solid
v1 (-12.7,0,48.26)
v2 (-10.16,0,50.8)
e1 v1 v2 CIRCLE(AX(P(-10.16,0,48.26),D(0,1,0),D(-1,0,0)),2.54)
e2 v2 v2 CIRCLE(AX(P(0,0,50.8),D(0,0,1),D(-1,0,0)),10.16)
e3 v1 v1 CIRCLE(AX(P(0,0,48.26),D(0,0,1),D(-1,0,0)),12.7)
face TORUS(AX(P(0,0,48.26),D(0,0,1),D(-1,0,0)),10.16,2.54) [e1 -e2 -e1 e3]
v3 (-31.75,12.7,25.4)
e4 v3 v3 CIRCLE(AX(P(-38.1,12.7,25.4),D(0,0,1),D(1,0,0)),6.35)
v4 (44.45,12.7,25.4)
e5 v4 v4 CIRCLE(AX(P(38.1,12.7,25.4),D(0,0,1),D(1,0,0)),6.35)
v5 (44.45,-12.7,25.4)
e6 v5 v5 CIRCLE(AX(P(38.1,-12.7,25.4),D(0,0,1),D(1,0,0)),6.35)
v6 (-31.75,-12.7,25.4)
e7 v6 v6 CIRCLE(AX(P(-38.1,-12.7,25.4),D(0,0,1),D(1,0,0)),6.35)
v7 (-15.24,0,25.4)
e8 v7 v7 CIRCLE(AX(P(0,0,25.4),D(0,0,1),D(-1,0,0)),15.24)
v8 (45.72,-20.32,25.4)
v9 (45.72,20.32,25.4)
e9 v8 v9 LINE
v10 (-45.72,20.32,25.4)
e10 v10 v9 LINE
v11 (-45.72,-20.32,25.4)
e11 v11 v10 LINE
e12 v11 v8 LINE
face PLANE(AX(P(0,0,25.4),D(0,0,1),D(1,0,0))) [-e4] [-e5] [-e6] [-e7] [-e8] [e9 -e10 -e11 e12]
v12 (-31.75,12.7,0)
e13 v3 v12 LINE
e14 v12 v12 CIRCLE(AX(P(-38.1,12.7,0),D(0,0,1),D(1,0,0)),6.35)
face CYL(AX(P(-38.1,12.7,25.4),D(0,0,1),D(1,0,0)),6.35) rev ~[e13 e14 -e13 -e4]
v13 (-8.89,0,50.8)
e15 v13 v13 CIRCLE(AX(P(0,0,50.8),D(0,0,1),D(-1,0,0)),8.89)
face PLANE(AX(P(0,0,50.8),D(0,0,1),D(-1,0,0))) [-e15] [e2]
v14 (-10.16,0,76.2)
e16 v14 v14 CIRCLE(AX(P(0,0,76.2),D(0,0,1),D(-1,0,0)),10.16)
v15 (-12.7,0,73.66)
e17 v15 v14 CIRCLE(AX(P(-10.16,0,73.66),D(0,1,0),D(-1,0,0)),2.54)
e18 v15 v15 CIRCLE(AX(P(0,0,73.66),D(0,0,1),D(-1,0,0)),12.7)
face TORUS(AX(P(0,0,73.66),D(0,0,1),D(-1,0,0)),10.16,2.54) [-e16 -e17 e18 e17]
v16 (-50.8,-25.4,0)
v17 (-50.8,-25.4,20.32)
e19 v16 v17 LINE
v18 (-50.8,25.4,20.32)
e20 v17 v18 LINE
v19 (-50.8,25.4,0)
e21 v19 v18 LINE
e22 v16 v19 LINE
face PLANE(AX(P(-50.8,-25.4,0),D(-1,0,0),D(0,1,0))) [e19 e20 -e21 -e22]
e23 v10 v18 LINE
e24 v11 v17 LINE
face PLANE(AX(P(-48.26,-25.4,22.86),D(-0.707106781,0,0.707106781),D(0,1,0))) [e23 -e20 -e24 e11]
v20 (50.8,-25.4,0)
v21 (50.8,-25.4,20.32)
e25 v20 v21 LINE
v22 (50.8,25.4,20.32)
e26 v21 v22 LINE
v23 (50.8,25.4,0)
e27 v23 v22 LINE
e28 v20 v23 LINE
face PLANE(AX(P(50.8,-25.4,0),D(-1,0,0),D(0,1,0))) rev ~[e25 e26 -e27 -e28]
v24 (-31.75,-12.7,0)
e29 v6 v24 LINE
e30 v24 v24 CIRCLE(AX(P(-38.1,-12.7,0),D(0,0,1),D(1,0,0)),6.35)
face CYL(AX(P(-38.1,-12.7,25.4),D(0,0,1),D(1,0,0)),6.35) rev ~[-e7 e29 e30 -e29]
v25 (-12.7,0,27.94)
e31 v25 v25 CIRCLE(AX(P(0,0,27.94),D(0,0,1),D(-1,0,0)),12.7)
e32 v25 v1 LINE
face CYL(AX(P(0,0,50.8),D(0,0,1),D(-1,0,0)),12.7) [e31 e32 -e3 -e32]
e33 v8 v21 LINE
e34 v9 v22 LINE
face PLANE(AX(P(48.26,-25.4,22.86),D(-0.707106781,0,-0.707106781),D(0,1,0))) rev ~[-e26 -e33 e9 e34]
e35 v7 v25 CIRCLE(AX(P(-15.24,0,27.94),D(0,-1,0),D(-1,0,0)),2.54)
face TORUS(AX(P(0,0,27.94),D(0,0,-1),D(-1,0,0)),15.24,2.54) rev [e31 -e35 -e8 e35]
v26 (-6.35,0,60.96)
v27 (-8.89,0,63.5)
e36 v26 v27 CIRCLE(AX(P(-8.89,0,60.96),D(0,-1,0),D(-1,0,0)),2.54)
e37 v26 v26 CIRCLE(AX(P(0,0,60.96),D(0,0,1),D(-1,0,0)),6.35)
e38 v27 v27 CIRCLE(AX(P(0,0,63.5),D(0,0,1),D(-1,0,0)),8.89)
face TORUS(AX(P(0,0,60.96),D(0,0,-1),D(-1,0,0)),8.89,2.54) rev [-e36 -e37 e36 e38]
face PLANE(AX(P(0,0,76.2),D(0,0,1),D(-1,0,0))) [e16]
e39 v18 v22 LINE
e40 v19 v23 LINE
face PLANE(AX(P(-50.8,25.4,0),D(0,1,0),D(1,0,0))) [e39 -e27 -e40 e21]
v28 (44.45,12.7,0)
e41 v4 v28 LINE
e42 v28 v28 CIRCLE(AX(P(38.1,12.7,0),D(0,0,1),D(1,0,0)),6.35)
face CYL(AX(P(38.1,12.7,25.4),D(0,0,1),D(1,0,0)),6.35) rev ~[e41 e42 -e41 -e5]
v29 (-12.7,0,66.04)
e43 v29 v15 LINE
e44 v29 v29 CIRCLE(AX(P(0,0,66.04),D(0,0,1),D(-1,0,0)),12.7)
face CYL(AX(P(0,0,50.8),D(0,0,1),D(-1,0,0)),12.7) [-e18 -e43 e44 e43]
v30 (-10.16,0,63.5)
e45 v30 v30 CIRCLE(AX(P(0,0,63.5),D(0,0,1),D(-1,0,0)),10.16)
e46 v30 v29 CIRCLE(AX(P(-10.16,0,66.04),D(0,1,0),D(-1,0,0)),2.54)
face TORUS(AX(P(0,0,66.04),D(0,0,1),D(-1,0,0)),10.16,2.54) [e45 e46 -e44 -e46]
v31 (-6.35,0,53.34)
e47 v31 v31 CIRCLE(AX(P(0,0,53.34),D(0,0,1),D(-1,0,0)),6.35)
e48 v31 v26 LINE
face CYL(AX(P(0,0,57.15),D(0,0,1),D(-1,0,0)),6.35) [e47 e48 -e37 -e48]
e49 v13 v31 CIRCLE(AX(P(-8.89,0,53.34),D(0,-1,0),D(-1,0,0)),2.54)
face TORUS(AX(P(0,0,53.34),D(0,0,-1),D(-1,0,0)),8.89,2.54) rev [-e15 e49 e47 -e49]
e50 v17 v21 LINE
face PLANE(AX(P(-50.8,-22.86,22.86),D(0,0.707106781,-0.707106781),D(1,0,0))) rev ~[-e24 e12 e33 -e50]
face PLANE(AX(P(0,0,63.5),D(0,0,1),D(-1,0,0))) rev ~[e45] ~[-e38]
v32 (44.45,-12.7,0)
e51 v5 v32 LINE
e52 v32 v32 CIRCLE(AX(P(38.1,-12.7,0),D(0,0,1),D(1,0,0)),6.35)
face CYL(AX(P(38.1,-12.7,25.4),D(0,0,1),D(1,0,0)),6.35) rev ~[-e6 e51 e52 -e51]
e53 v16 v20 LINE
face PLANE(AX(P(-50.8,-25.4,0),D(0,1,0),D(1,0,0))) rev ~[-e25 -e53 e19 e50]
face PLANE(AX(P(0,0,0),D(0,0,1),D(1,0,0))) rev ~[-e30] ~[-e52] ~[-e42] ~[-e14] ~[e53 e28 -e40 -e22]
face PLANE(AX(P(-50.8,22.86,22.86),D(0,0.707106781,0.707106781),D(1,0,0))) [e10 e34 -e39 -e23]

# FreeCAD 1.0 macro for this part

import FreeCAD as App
import Part
import Sketcher
Q = App.Units.Quantity


def edges_at(feature, points):
    """Names of the edges that pass closest to the given points."""
    edges = feature.Shape.Edges
    near = lambda p: min(range(len(edges)), key=lambda i: edges[i].distToShape(Part.Vertex(*p))[0])
    return sorted({f"Edge{near(p) + 1}" for p in points})

doc = App.newDocument("Part")
body = doc.addObject("PartDesign::Body", "Body")

# Sketch on XY plane
sketch1 = body.newObject("Sketcher::SketchObject", "Sketch")
sketch1.AttachmentSupport = (doc.getObject("XY_Plane"), [""])
sketch1.MapMode = "FlatFace"
sketch1.addGeometry([
    Part.LineSegment(App.Vector(-51, 25, 0), App.Vector(-51, -25, 0)),
    Part.LineSegment(App.Vector(-51, -25, 0), App.Vector(51, -25, 0)),
    Part.LineSegment(App.Vector(51, -25, 0), App.Vector(51, 25, 0)),
    Part.LineSegment(App.Vector(51, 25, 0), App.Vector(-51, 25, 0)),
], False)
sketch1.addConstraint([
    Sketcher.Constraint("Coincident", 0, 2, 1, 1),
    Sketcher.Constraint("Coincident", 1, 2, 2, 1),
    Sketcher.Constraint("Coincident", 2, 2, 3, 1),
    Sketcher.Constraint("Coincident", 3, 2, 0, 1),
    Sketcher.Constraint("Vertical", 0),
    Sketcher.Constraint("Horizontal", 1),
    Sketcher.Constraint("Vertical", 2),
    Sketcher.Constraint("Horizontal", 3),
    Sketcher.Constraint("Symmetric", 0, 2, 2, 2, -1, 1),
    Sketcher.Constraint("DistanceX", 1, 1, 1, 2, Q("4 in")),
    Sketcher.Constraint("DistanceY", 0, 2, 0, 1, Q("2 in")),
])
pad1 = body.newObject("PartDesign::Pad", "Pad")
pad1.Profile = sketch1
pad1.Length = Q("1 in")

# Sketch on XY plane
sketch2 = body.newObject("Sketcher::SketchObject", "Sketch001")
sketch2.AttachmentSupport = (doc.getObject("XY_Plane"), [""])
sketch2.MapMode = "FlatFace"
sketch2.AttachmentOffset = App.Placement(App.Vector(0, 0, 1 * 25.4), App.Rotation())
sketch2.addGeometry([
    Part.Circle(App.Vector(-38, 13, 0), App.Vector(0, 0, 1), 6),
    Part.Circle(App.Vector(38, 13, 0), App.Vector(0, 0, 1), 6),
    Part.Circle(App.Vector(38, -13, 0), App.Vector(0, 0, 1), 6),
    Part.Circle(App.Vector(-38, -13, 0), App.Vector(0, 0, 1), 6),
], False)
sketch2.addConstraint([
    Sketcher.Constraint("Equal", 0, 1),
    Sketcher.Constraint("Equal", 1, 2),
    Sketcher.Constraint("Equal", 2, 3),
    Sketcher.Constraint("Symmetric", 0, 3, 2, 3, -1, 1),
    Sketcher.Constraint("Symmetric", 1, 3, 3, 3, -1, 1),
    Sketcher.Constraint("Symmetric", 0, 3, 1, 3, -2),
    Sketcher.Constraint("Diameter", 0, Q("0.5 in")),
    Sketcher.Constraint("DistanceX", 0, 3, 1, 3, Q("3 in")),
    Sketcher.Constraint("DistanceY", 2, 3, 1, 3, Q("1 in")),
])
pocket1 = body.newObject("PartDesign::Pocket", "Pocket")
pocket1.Profile = sketch2
pocket1.Type = "ThroughAll"

# Sketch on XZ plane
sketch3 = body.newObject("Sketcher::SketchObject", "Sketch002")
sketch3.AttachmentSupport = (doc.getObject("XZ_Plane"), [""])
sketch3.MapMode = "FlatFace"
sketch3.addGeometry([
    Part.LineSegment(App.Vector(-13, 76, 0), App.Vector(-13, 25, 0)),
    Part.LineSegment(App.Vector(-13, 25, 0), App.Vector(0, 25, 0)),
    Part.LineSegment(App.Vector(0, 25, 0), App.Vector(0, 76, 0)),
    Part.LineSegment(App.Vector(0, 76, 0), App.Vector(-13, 76, 0)),
], False)
sketch3.addConstraint([
    Sketcher.Constraint("Coincident", 0, 2, 1, 1),
    Sketcher.Constraint("Coincident", 1, 2, 2, 1),
    Sketcher.Constraint("Coincident", 2, 2, 3, 1),
    Sketcher.Constraint("Coincident", 3, 2, 0, 1),
    Sketcher.Constraint("Vertical", 0),
    Sketcher.Constraint("Horizontal", 1),
    Sketcher.Constraint("Vertical", 2),
    Sketcher.Constraint("Horizontal", 3),
    Sketcher.Constraint("PointOnObject", 1, 2, -2),
    Sketcher.Constraint("DistanceY", 0, 2, 0, 1, Q("2 in")),
    Sketcher.Constraint("DistanceX", 1, 1, 1, 2, Q("0.5 in")),
    Sketcher.Constraint("DistanceY", -1, 1, 0, 2, Q("1 in")),
])
revolution = body.newObject("PartDesign::Revolution", "Revolution")
revolution.Profile = sketch3
revolution.ReferenceAxis = (sketch3, ["V_Axis"])
revolution.Angle = 360

# Sketch on XZ plane
sketch4 = body.newObject("Sketcher::SketchObject", "Sketch003")
sketch4.AttachmentSupport = (doc.getObject("XZ_Plane"), [""])
sketch4.MapMode = "FlatFace"
sketch4.addGeometry([
    Part.LineSegment(App.Vector(-19, 64, 0), App.Vector(-19, 51, 0)),
    Part.LineSegment(App.Vector(-19, 51, 0), App.Vector(-6, 51, 0)),
    Part.LineSegment(App.Vector(-6, 51, 0), App.Vector(-6, 64, 0)),
    Part.LineSegment(App.Vector(-6, 64, 0), App.Vector(-19, 64, 0)),
], False)
sketch4.addConstraint([
    Sketcher.Constraint("Coincident", 0, 2, 1, 1),
    Sketcher.Constraint("Coincident", 1, 2, 2, 1),
    Sketcher.Constraint("Coincident", 2, 2, 3, 1),
    Sketcher.Constraint("Coincident", 3, 2, 0, 1),
    Sketcher.Constraint("Vertical", 0),
    Sketcher.Constraint("Horizontal", 1),
    Sketcher.Constraint("Vertical", 2),
    Sketcher.Constraint("Horizontal", 3),
    Sketcher.Constraint("Equal", 3, 0),
    Sketcher.Constraint("DistanceX", 1, 1, 1, 2, Q("0.5 in")),
    Sketcher.Constraint("DistanceY", -1, 1, 0, 2, Q("2 in")),
    Sketcher.Constraint("DistanceX", 0, 2, -1, 1, Q("0.75 in")),
])
groove = body.newObject("PartDesign::Groove", "Groove")
groove.Profile = sketch4
groove.ReferenceAxis = (sketch4, ["V_Axis"])
groove.Angle = 360
doc.recompute()

fillet = body.newObject("PartDesign::Fillet", "Fillet")
fillet.Base = (groove, edges_at(groove, [
    (12.7, 0, 50.8),
    (6.35, 0, 50.8),
    (12.7, 0, 63.5),
    (6.35, 0, 63.5),
    (12.7, 0, 25.4),
    (12.7, 0, 76.2),
]))
fillet.Radius = Q("0.1 in")
doc.recompute()

chamfer = body.newObject("PartDesign::Chamfer", "Chamfer")
chamfer.Base = (fillet, edges_at(fillet, [
    (0, 25.4, 25.4),
    (50.8, 0, 25.4),
    (0, -25.4, 25.4),
    (-50.8, 0, 25.4),
]))
chamfer.Size = Q("0.2 in")

doc.recompute()
